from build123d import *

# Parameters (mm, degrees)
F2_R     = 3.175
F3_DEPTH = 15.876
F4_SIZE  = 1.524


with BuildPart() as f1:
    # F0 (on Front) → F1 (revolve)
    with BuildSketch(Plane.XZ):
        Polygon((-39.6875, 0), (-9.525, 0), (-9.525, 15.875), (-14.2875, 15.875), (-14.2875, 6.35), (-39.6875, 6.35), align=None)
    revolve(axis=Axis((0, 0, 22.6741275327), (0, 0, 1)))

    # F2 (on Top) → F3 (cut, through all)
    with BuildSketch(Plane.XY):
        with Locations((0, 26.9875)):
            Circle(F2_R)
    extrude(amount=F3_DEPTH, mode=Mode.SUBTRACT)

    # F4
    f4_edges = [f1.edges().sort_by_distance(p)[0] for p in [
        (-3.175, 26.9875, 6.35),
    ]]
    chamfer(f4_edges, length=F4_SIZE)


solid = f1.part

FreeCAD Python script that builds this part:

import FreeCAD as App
import Part
import Sketcher

V = App.Vector
Q = App.Units.Quantity


def edges_at(feature, points):
    """Names of the edges that pass closest to the given points."""
    edges = feature.Shape.Edges
    near = lambda p: min(range(len(edges)), key=lambda i: edges[i].distToShape(Part.Vertex(*p))[0])
    return sorted({f"Edge{near(p) + 1}" for p in points})

doc = App.newDocument("Part")
body = doc.addObject("PartDesign::Body", "Body")

sketch1 = body.newObject("Sketcher::SketchObject", "Sketch")
sketch1.AttachmentSupport = (doc.getObject("XZ_Plane"), [""])
sketch1.MapMode = "FlatFace"
sketch1.addGeometry(Part.LineSegment(V(-39.7, 0, 0), V(-9.5, 0, 0)), False)
sketch1.addGeometry(Part.LineSegment(V(-9.5, 0, 0), V(-9.5, 15.9, 0)), False)
sketch1.addGeometry(Part.LineSegment(V(-9.5, 15.9, 0), V(-14.3, 15.9, 0)), False)
sketch1.addGeometry(Part.LineSegment(V(-14.3, 15.9, 0), V(-14.3, 6.3, 0)), False)
sketch1.addGeometry(Part.LineSegment(V(-14.3, 6.3, 0), V(-39.7, 6.3, 0)), False)
sketch1.addGeometry(Part.LineSegment(V(-39.7, 6.3, 0), V(-39.7, 0, 0)), False)
sketch1.addConstraint(Sketcher.Constraint("Coincident", 0, 2, 1, 1))
sketch1.addConstraint(Sketcher.Constraint("Coincident", 1, 2, 2, 1))
sketch1.addConstraint(Sketcher.Constraint("Coincident", 2, 2, 3, 1))
sketch1.addConstraint(Sketcher.Constraint("Coincident", 3, 2, 4, 1))
sketch1.addConstraint(Sketcher.Constraint("Coincident", 4, 2, 5, 1))
sketch1.addConstraint(Sketcher.Constraint("Coincident", 5, 2, 0, 1))
sketch1.addConstraint(Sketcher.Constraint("Horizontal", 0))
sketch1.addConstraint(Sketcher.Constraint("Vertical", 1))
sketch1.addConstraint(Sketcher.Constraint("Horizontal", 2))
sketch1.addConstraint(Sketcher.Constraint("Vertical", 3))
sketch1.addConstraint(Sketcher.Constraint("Horizontal", 4))
sketch1.addConstraint(Sketcher.Constraint("Vertical", 5))
sketch1.addConstraint(Sketcher.Constraint("PointOnObject", 0, 2, -1))
sketch1.addConstraint(Sketcher.Constraint("DistanceX", 4, 2, 4, 1, Q("1 in")))
sketch1.addConstraint(Sketcher.Constraint("DistanceY", 5, 2, 5, 1, Q("0.25 in")))
sketch1.addConstraint(Sketcher.Constraint("DistanceX", 0, 1, 0, 2, Q("1.1875 in")))
sketch1.addConstraint(Sketcher.Constraint("DistanceY", 1, 1, 1, 2, Q("0.625 in")))
sketch1.addConstraint(Sketcher.Constraint("DistanceX", 0, 2, -1, 1, Q("0.375 in")))
revolution = body.newObject("PartDesign::Revolution", "Revolution")
revolution.Profile = sketch1
revolution.ReferenceAxis = (sketch1, ["V_Axis"])
revolution.Angle = 360

sketch2 = body.newObject("Sketcher::SketchObject", "Sketch001")
sketch2.AttachmentSupport = (doc.getObject("XY_Plane"), [""])
sketch2.MapMode = "FlatFace"
sketch2.addGeometry(Part.Circle(V(0, 27, 0), V(0, 0, 1), 3.2), False)
sketch2.addConstraint(Sketcher.Constraint("PointOnObject", 0, 3, -2))
sketch2.addConstraint(Sketcher.Constraint("Diameter", 0, Q("0.25 in")))
sketch2.addConstraint(Sketcher.Constraint("DistanceY", -1, 1, 0, 3, Q("1.0625 in")))
pocket1 = body.newObject("PartDesign::Pocket", "Pocket")
pocket1.Profile = sketch2
pocket1.Type = "ThroughAll"
pocket1.Reversed = True
doc.recompute()

chamfer = body.newObject("PartDesign::Chamfer", "Chamfer")
chamfer.Base = (pocket1, edges_at(pocket1, [(-3.175, 26.988, 6.35)]))
chamfer.Size = Q("0.06 in")

doc.recompute()
